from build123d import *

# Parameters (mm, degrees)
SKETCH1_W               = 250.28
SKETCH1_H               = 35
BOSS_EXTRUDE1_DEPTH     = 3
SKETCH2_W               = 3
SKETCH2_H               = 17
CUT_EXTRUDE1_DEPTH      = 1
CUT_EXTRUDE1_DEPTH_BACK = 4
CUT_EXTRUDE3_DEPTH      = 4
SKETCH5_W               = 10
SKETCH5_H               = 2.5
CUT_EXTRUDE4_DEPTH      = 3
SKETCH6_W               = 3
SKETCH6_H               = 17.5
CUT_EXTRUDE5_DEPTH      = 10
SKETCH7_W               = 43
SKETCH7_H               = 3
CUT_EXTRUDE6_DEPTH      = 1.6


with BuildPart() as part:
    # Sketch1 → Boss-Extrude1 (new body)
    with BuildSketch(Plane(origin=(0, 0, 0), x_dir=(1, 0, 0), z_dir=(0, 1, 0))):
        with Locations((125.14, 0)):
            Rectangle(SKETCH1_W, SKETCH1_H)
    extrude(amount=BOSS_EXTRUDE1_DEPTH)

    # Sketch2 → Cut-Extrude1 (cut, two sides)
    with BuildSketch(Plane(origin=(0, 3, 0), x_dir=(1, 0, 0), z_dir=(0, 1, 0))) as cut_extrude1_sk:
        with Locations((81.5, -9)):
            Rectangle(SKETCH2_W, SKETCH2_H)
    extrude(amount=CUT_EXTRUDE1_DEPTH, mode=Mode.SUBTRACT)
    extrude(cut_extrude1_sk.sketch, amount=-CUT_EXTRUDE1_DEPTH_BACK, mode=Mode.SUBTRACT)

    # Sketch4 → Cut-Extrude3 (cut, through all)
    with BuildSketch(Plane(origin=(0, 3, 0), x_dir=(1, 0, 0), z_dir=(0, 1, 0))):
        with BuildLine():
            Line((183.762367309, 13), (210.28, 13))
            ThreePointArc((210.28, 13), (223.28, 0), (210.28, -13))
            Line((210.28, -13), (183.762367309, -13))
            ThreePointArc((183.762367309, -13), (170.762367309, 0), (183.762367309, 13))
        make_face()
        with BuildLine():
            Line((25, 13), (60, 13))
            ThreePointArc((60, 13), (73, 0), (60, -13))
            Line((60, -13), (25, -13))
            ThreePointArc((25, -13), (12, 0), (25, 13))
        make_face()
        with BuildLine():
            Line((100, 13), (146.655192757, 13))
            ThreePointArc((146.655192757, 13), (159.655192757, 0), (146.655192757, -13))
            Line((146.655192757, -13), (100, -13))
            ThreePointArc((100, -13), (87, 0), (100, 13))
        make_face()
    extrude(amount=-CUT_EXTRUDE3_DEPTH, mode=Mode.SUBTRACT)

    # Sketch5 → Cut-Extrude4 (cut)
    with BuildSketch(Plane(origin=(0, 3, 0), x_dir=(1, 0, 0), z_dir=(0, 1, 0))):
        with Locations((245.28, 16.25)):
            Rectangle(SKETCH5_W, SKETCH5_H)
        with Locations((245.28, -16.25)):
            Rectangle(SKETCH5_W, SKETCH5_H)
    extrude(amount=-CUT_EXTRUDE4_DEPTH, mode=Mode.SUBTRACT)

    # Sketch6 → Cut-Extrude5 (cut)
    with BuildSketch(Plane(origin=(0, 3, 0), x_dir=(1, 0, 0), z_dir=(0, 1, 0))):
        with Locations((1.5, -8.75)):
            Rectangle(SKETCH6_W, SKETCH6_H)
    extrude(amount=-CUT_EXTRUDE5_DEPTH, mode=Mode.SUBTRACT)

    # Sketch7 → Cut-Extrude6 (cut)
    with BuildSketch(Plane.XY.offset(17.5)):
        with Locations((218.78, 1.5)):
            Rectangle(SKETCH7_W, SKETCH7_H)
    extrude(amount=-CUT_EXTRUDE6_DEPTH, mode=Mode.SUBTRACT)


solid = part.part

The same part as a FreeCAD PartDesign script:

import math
import FreeCAD as App
import Part
import Sketcher
from FreeCAD import Vector
Q = App.Units.Quantity

doc = App.newDocument("Part")
params = doc.addObject("Spreadsheet::Sheet", "Params")
for row, (alias, value) in enumerate([
    ("sketch1_height", "35 mm"),
    ("sketch1_width", "250.28 mm"),
    ("pad1_length", "3 mm"),
    ("sketch2_width", "3 mm"),
    ("sketch2_height", "17 mm"),
    ("sketch3_radius", "13 mm"),
    ("sketch3_width", "35 mm"),
    ("sketch4_width", "10 mm"),
    ("sketch4_height", "2.5 mm"),
    ("pocket3_length", "3 mm"),
    ("sketch5_width", "3 mm"),
    ("sketch5_height", "17.5 mm"),
    ("pocket4_length", "10 mm"),
    ("sketch6_width", "43 mm"),
    ("sketch6_height", "3 mm"),
    ("pocket5_length", "1.6 mm"),
], start=1):
    params.set(f"A{row}", alias)
    params.set(f"B{row}", "=" + value)
    params.setAlias(f"B{row}", alias)

body = doc.addObject("PartDesign::Body", "Body")

sketch1 = body.newObject("Sketcher::SketchObject", "Sketch")
sketch1.AttachmentSupport = (doc.getObject("XZ_Plane"), [""])
sketch1.MapMode = "FlatFace"
sketch1.addGeometry([
    Part.LineSegment(Vector(0, -18, 0), Vector(0, 18, 0)),
    Part.LineSegment(Vector(0, 18, 0), Vector(250, 18, 0)),
    Part.LineSegment(Vector(250, 18, 0), Vector(250, -18, 0)),
    Part.LineSegment(Vector(250, -18, 0), Vector(0, -18, 0)),
], False)
sketch1.addConstraint([
    Sketcher.Constraint("Coincident", 0, 2, 1, 1),
    Sketcher.Constraint("Coincident", 1, 2, 2, 1),
    Sketcher.Constraint("Coincident", 2, 2, 3, 1),
    Sketcher.Constraint("Coincident", 3, 2, 0, 1),
    Sketcher.Constraint("Vertical", 0),
    Sketcher.Constraint("Horizontal", 1),
    Sketcher.Constraint("Vertical", 2),
    Sketcher.Constraint("Horizontal", 3),
    Sketcher.Constraint("Symmetric", 0, 2, 3, 2, -1, 1),
    Sketcher.Constraint("DistanceY", 0, 1, 0, 2, Q("35 mm")),
    Sketcher.Constraint("DistanceX", 1, 1, 1, 2, Q("250.28 mm")),
])
sketch1.setExpression("Constraints[9]", "Params.sketch1_height")
sketch1.setExpression("Constraints[10]", "Params.sketch1_width")
pad1 = body.newObject("PartDesign::Pad", "Pad")
pad1.Profile = sketch1
pad1.setExpression("Length", "Params.pad1_length")
pad1.Reversed = True

sketch2 = body.newObject("Sketcher::SketchObject", "Sketch001")
sketch2.AttachmentSupport = (doc.getObject("XZ_Plane"), [""])
sketch2.MapMode = "FlatFace"
sketch2.AttachmentOffset = App.Placement(Vector(0, 0, -3), App.Rotation())
sketch2.addGeometry([
    Part.LineSegment(Vector(80, 0.5, 0), Vector(80, 17.5, 0)),
    Part.LineSegment(Vector(80, 17.5, 0), Vector(83, 17.5, 0)),
    Part.LineSegment(Vector(83, 17.5, 0), Vector(83, 0.5, 0)),
    Part.LineSegment(Vector(83, 0.5, 0), Vector(80, 0.5, 0)),
], False)
sketch2.addConstraint([
    Sketcher.Constraint("Coincident", 0, 2, 1, 1),
    Sketcher.Constraint("Coincident", 1, 2, 2, 1),
    Sketcher.Constraint("Coincident", 2, 2, 3, 1),
    Sketcher.Constraint("Coincident", 3, 2, 0, 1),
    Sketcher.Constraint("Vertical", 0),
    Sketcher.Constraint("Horizontal", 1),
    Sketcher.Constraint("Vertical", 2),
    Sketcher.Constraint("Horizontal", 3),
    Sketcher.Constraint("DistanceX", 1, 1, 1, 2, Q("3 mm")),
    Sketcher.Constraint("DistanceY", 0, 1, 0, 2, Q("17 mm")),
    Sketcher.Constraint("DistanceX", -1, 1, 0, 2, Q("80 mm")),
    Sketcher.Constraint("DistanceY", -1, 1, 0, 2, Q("17.5 mm")),
])
sketch2.setExpression("Constraints[8]", "Params.sketch2_width")
sketch2.setExpression("Constraints[9]", "Params.sketch2_height")
pocket1 = body.newObject("PartDesign::Pocket", "Pocket")
pocket1.Profile = sketch2
pocket1.Type = "ThroughAll"
pocket1.Midplane = True

sketch3 = body.newObject("Sketcher::SketchObject", "Sketch002")
sketch3.AttachmentSupport = (doc.getObject("XZ_Plane"), [""])
sketch3.MapMode = "FlatFace"
sketch3.AttachmentOffset = App.Placement(Vector(0, 0, -3), App.Rotation())
sketch3.addGeometry([
    Part.LineSegment(Vector(210, -13, 0), Vector(184, -13, 0)),
    Part.ArcOfCircle(Part.Circle(Vector(184, 0, 0), Vector(0, 0, 1), 13), math.radians(90), math.radians(270)),
    Part.LineSegment(Vector(184, 13, 0), Vector(210, 13, 0)),
    Part.ArcOfCircle(Part.Circle(Vector(210, 0, 0), Vector(0, 0, 1), 13), math.radians(-90), math.radians(90)),
    Part.LineSegment(Vector(60, -13, 0), Vector(25, -13, 0)),
    Part.ArcOfCircle(Part.Circle(Vector(25, 0, 0), Vector(0, 0, 1), 13), math.radians(90), math.radians(270)),
    Part.LineSegment(Vector(25, 13, 0), Vector(60, 13, 0)),
    Part.ArcOfCircle(Part.Circle(Vector(60, 0, 0), Vector(0, 0, 1), 13), math.radians(-90), math.radians(90)),
    Part.LineSegment(Vector(147, -13, 0), Vector(100, -13, 0)),
    Part.ArcOfCircle(Part.Circle(Vector(100, 0, 0), Vector(0, 0, 1), 13), math.radians(90), math.radians(270)),
    Part.LineSegment(Vector(100, 13, 0), Vector(147, 13, 0)),
    Part.ArcOfCircle(Part.Circle(Vector(147, 0, 0), Vector(0, 0, 1), 13), math.radians(-90), math.radians(90)),
], False)
sketch3.addConstraint([
    Sketcher.Constraint("Tangent", 0, 2, 1, 2),
    Sketcher.Constraint("Tangent", 1, 1, 2, 1),
    Sketcher.Constraint("Tangent", 2, 2, 3, 2),
    Sketcher.Constraint("Tangent", 3, 1, 0, 1),
    Sketcher.Constraint("Tangent", 4, 2, 5, 2),
    Sketcher.Constraint("Tangent", 5, 1, 6, 1),
    Sketcher.Constraint("Tangent", 6, 2, 7, 2),
    Sketcher.Constraint("Tangent", 7, 1, 4, 1),
    Sketcher.Constraint("Tangent", 8, 2, 9, 2),
    Sketcher.Constraint("Tangent", 9, 1, 10, 1),
    Sketcher.Constraint("Tangent", 10, 2, 11, 2),
    Sketcher.Constraint("Tangent", 11, 1, 8, 1),
    Sketcher.Constraint("Horizontal", 0),
    Sketcher.Constraint("Horizontal", 2),
    Sketcher.Constraint("Horizontal", 4),
    Sketcher.Constraint("Horizontal", 6),
    Sketcher.Constraint("Horizontal", 8),
    Sketcher.Constraint("Horizontal", 10),
    Sketcher.Constraint("Equal", 3, 5),
    Sketcher.Constraint("Equal", 7, 9),
    Sketcher.Constraint("PointOnObject", 1, 3, -1),
    Sketcher.Constraint("PointOnObject", 5, 3, -1),
    Sketcher.Constraint("PointOnObject", 9, 3, -1),
    Sketcher.Constraint("Radius", 1, Q("13 mm")),
    Sketcher.Constraint("DistanceX", 4, 2, 4, 1, Q("35 mm")),
    Sketcher.Constraint("DistanceX", -1, 1, 5, 3, Q("25 mm")),
    Sketcher.Constraint("DistanceX", -1, 1, 9, 3, Q("100 mm")),
    Sketcher.Constraint("DistanceX", -1, 1, 3, 3, Q("210.28 mm")),
    Sketcher.Constraint("DistanceX", 0, 2, 0, 1, Q("26.517633 mm")),
    Sketcher.Constraint("DistanceX", 8, 2, 8, 1, Q("46.655193 mm")),
])
sketch3.setExpression("Constraints[23]", "Params.sketch3_radius")
sketch3.setExpression("Constraints[24]", "Params.sketch3_width")
pocket2 = body.newObject("PartDesign::Pocket", "Pocket001")
pocket2.Profile = sketch3
pocket2.Type = "ThroughAll"
pocket2.Reversed = True

sketch4 = body.newObject("Sketcher::SketchObject", "Sketch003")
sketch4.AttachmentSupport = (doc.getObject("XZ_Plane"), [""])
sketch4.MapMode = "FlatFace"
sketch4.AttachmentOffset = App.Placement(Vector(0, 0, -3), App.Rotation())
sketch4.addGeometry([
    Part.LineSegment(Vector(240.3, -17.5, 0), Vector(240.3, -15, 0)),
    Part.LineSegment(Vector(240.3, -15, 0), Vector(250.3, -15, 0)),
    Part.LineSegment(Vector(250.3, -15, 0), Vector(250.3, -17.5, 0)),
    Part.LineSegment(Vector(250.3, -17.5, 0), Vector(240.3, -17.5, 0)),
    Part.LineSegment(Vector(240.3, 15, 0), Vector(240.3, 17.5, 0)),
    Part.LineSegment(Vector(240.3, 17.5, 0), Vector(250.3, 17.5, 0)),
    Part.LineSegment(Vector(250.3, 17.5, 0), Vector(250.3, 15, 0)),
    Part.LineSegment(Vector(250.3, 15, 0), Vector(240.3, 15, 0)),
], False)
sketch4.addConstraint([
    Sketcher.Constraint("Coincident", 0, 2, 1, 1),
    Sketcher.Constraint("Coincident", 1, 2, 2, 1),
    Sketcher.Constraint("Coincident", 2, 2, 3, 1),
    Sketcher.Constraint("Coincident", 3, 2, 0, 1),
    Sketcher.Constraint("Coincident", 4, 2, 5, 1),
    Sketcher.Constraint("Coincident", 5, 2, 6, 1),
    Sketcher.Constraint("Coincident", 6, 2, 7, 1),
    Sketcher.Constraint("Coincident", 7, 2, 4, 1),
    Sketcher.Constraint("Vertical", 0),
    Sketcher.Constraint("Horizontal", 1),
    Sketcher.Constraint("Vertical", 2),
    Sketcher.Constraint("Horizontal", 3),
    Sketcher.Constraint("Vertical", 4),
    Sketcher.Constraint("Horizontal", 5),
    Sketcher.Constraint("Vertical", 6),
    Sketcher.Constraint("Horizontal", 7),
    Sketcher.Constraint("Symmetric", 3, 2, 4, 2, -1),
    Sketcher.Constraint("Symmetric", 1, 2, 6, 2, -1),
    Sketcher.Constraint("DistanceX", 1, 1, 1, 2, Q("10 mm")),
    Sketcher.Constraint("DistanceY", 0, 1, 0, 2, Q("2.5 mm")),
    Sketcher.Constraint("DistanceY", 0, 2, -1, 1, Q("15 mm")),
    Sketcher.Constraint("DistanceX", -1, 1, 0, 2, Q("240.28 mm")),
])
sketch4.setExpression("Constraints[18]", "Params.sketch4_width")
sketch4.setExpression("Constraints[19]", "Params.sketch4_height")
pocket3 = body.newObject("PartDesign::Pocket", "Pocket002")
pocket3.Profile = sketch4
pocket3.setExpression("Length", "Params.pocket3_length")
pocket3.Reversed = True

sketch5 = body.newObject("Sketcher::SketchObject", "Sketch004")
sketch5.AttachmentSupport = (doc.getObject("XZ_Plane"), [""])
sketch5.MapMode = "FlatFace"
sketch5.AttachmentOffset = App.Placement(Vector(0, 0, -3), App.Rotation())
sketch5.addGeometry([
    Part.LineSegment(Vector(0, 0, 0), Vector(0, 17.5, 0)),
    Part.LineSegment(Vector(0, 17.5, 0), Vector(3, 17.5, 0)),
    Part.LineSegment(Vector(3, 17.5, 0), Vector(3, 0, 0)),
    Part.LineSegment(Vector(3, 0, 0), Vector(0, 0, 0)),
], False)
sketch5.addConstraint([
    Sketcher.Constraint("Coincident", 0, 2, 1, 1),
    Sketcher.Constraint("Coincident", 1, 2, 2, 1),
    Sketcher.Constraint("Coincident", 2, 2, 3, 1),
    Sketcher.Constraint("Coincident", 3, 2, 0, 1),
    Sketcher.Constraint("Vertical", 0),
    Sketcher.Constraint("Horizontal", 1),
    Sketcher.Constraint("Vertical", 2),
    Sketcher.Constraint("Horizontal", 3),
    Sketcher.Constraint("Coincident", 3, 2, -1, 1),
    Sketcher.Constraint("DistanceX", 1, 1, 1, 2, Q("3 mm")),
    Sketcher.Constraint("DistanceY", 0, 1, 0, 2, Q("17.5 mm")),
])
sketch5.setExpression("Constraints[9]", "Params.sketch5_width")
sketch5.setExpression("Constraints[10]", "Params.sketch5_height")
pocket4 = body.newObject("PartDesign::Pocket", "Pocket003")
pocket4.Profile = sketch5
pocket4.setExpression("Length", "Params.pocket4_length")
pocket4.Reversed = True

sketch6 = body.newObject("Sketcher::SketchObject", "Sketch005")
sketch6.AttachmentSupport = (doc.getObject("XY_Plane"), [""])
sketch6.MapMode = "FlatFace"
sketch6.AttachmentOffset = App.Placement(Vector(0, 0, 17.5), App.Rotation())
sketch6.addGeometry([
    Part.LineSegment(Vector(197.3, 3, 0), Vector(197.3, 0, 0)),
    Part.LineSegment(Vector(197.3, 0, 0), Vector(240.3, 0, 0)),
    Part.LineSegment(Vector(240.3, 0, 0), Vector(240.3, 3, 0)),
    Part.LineSegment(Vector(240.3, 3, 0), Vector(197.3, 3, 0)),
], False)
sketch6.addConstraint([
    Sketcher.Constraint("Coincident", 0, 2, 1, 1),
    Sketcher.Constraint("Coincident", 1, 2, 2, 1),
    Sketcher.Constraint("Coincident", 2, 2, 3, 1),
    Sketcher.Constraint("Coincident", 3, 2, 0, 1),
    Sketcher.Constraint("Vertical", 0),
    Sketcher.Constraint("Horizontal", 1),
    Sketcher.Constraint("Vertical", 2),
    Sketcher.Constraint("Horizontal", 3),
    Sketcher.Constraint("PointOnObject", 0, 2, -1),
    Sketcher.Constraint("DistanceX", 1, 1, 1, 2, Q("43 mm")),
    Sketcher.Constraint("DistanceY", 0, 2, 0, 1, Q("3 mm")),
    Sketcher.Constraint("DistanceX", -1, 1, 0, 2, Q("197.28 mm")),
])
sketch6.setExpression("Constraints[9]", "Params.sketch6_width")
sketch6.setExpression("Constraints[10]", "Params.sketch6_height")
pocket5 = body.newObject("PartDesign::Pocket", "Pocket004")
pocket5.Profile = sketch6
pocket5.setExpression("Length", "Params.pocket5_length")

doc.recompute()
